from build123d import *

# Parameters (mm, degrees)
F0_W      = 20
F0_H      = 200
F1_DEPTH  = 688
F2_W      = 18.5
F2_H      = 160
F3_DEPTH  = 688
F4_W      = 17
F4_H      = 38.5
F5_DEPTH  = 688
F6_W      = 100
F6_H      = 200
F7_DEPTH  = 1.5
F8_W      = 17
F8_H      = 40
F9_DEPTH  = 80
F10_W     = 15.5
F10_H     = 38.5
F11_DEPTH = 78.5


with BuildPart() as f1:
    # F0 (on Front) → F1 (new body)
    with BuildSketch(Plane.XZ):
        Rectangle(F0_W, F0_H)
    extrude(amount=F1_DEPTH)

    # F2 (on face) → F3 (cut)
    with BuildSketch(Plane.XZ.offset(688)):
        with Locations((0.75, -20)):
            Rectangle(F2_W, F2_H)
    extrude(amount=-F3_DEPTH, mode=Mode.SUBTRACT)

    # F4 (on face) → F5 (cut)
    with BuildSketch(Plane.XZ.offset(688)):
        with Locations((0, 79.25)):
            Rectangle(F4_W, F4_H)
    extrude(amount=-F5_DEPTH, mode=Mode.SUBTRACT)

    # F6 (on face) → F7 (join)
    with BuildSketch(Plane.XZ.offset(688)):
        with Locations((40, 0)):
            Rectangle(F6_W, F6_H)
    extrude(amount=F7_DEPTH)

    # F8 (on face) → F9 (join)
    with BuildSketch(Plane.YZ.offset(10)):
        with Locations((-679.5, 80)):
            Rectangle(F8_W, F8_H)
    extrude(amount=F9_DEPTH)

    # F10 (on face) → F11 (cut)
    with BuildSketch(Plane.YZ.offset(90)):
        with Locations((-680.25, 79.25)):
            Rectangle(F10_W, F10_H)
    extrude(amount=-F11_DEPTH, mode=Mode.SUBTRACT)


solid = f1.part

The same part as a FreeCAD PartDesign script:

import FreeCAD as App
import Part
import Sketcher

doc = App.newDocument("Part")
body = doc.addObject("PartDesign::Body", "Body")

# Sketch on XZ plane
sketch1 = body.newObject("Sketcher::SketchObject", "Sketch")
sketch1.AttachmentSupport = (doc.getObject("XZ_Plane"), [""])
sketch1.MapMode = "FlatFace"
sketch1.addGeometry(Part.LineSegment(App.Vector(-10, 100, 0), App.Vector(-10, -100, 0)), False)
sketch1.addGeometry(Part.LineSegment(App.Vector(-10, -100, 0), App.Vector(10, -100, 0)), False)
sketch1.addGeometry(Part.LineSegment(App.Vector(10, -100, 0), App.Vector(10, 100, 0)), False)
sketch1.addGeometry(Part.LineSegment(App.Vector(10, 100, 0), App.Vector(-10, 100, 0)), False)
sketch1.addConstraint(Sketcher.Constraint("Coincident", 0, 2, 1, 1))
sketch1.addConstraint(Sketcher.Constraint("Coincident", 1, 2, 2, 1))
sketch1.addConstraint(Sketcher.Constraint("Coincident", 2, 2, 3, 1))
sketch1.addConstraint(Sketcher.Constraint("Coincident", 3, 2, 0, 1))
sketch1.addConstraint(Sketcher.Constraint("Vertical", 0))
sketch1.addConstraint(Sketcher.Constraint("Horizontal", 1))
sketch1.addConstraint(Sketcher.Constraint("Vertical", 2))
sketch1.addConstraint(Sketcher.Constraint("Horizontal", 3))
sketch1.addConstraint(Sketcher.Constraint("Symmetric", 0, 2, 2, 2, -1, 1))
sketch1.addConstraint(Sketcher.Constraint("DistanceX", 1, 1, 1, 2, 20.0))
sketch1.addConstraint(Sketcher.Constraint("DistanceY", 0, 2, 0, 1, 200.0))
pad1 = body.newObject("PartDesign::Pad", "Pad")
pad1.Profile = sketch1
pad1.Length = 688

# Sketch on XZ plane
sketch2 = body.newObject("Sketcher::SketchObject", "Sketch001")
sketch2.AttachmentSupport = (doc.getObject("XZ_Plane"), [""])
sketch2.MapMode = "FlatFace"
sketch2.AttachmentOffset = App.Placement(App.Vector(0, 0, 688), App.Rotation())
sketch2.addGeometry(Part.LineSegment(App.Vector(-8, 60, 0), App.Vector(-8, -100, 0)), False)
sketch2.addGeometry(Part.LineSegment(App.Vector(-8, -100, 0), App.Vector(10, -100, 0)), False)
sketch2.addGeometry(Part.LineSegment(App.Vector(10, -100, 0), App.Vector(10, 60, 0)), False)
sketch2.addGeometry(Part.LineSegment(App.Vector(10, 60, 0), App.Vector(-8, 60, 0)), False)
sketch2.addConstraint(Sketcher.Constraint("Coincident", 0, 2, 1, 1))
sketch2.addConstraint(Sketcher.Constraint("Coincident", 1, 2, 2, 1))
sketch2.addConstraint(Sketcher.Constraint("Coincident", 2, 2, 3, 1))
sketch2.addConstraint(Sketcher.Constraint("Coincident", 3, 2, 0, 1))
sketch2.addConstraint(Sketcher.Constraint("Vertical", 0))
sketch2.addConstraint(Sketcher.Constraint("Horizontal", 1))
sketch2.addConstraint(Sketcher.Constraint("Vertical", 2))
sketch2.addConstraint(Sketcher.Constraint("Horizontal", 3))
sketch2.addConstraint(Sketcher.Constraint("DistanceY", 0, 2, 0, 1, 160.0))
sketch2.addConstraint(Sketcher.Constraint("DistanceX", 1, 1, 1, 2, 18.5))
sketch2.addConstraint(Sketcher.Constraint("DistanceY", 0, 2, -1, 1, 100.0))
sketch2.addConstraint(Sketcher.Constraint("DistanceX", -1, 1, 1, 2, 10.0))
pocket1 = body.newObject("PartDesign::Pocket", "Pocket")
pocket1.Profile = sketch2
pocket1.Length = 688

# Sketch on XZ plane
sketch3 = body.newObject("Sketcher::SketchObject", "Sketch002")
sketch3.AttachmentSupport = (doc.getObject("XZ_Plane"), [""])
sketch3.MapMode = "FlatFace"
sketch3.AttachmentOffset = App.Placement(App.Vector(0, 0, 688), App.Rotation())
sketch3.addGeometry(Part.LineSegment(App.Vector(-8, 98, 0), App.Vector(-8, 60, 0)), False)
sketch3.addGeometry(Part.LineSegment(App.Vector(-8, 60, 0), App.Vector(8, 60, 0)), False)
sketch3.addGeometry(Part.LineSegment(App.Vector(8, 60, 0), App.Vector(8, 98, 0)), False)
sketch3.addGeometry(Part.LineSegment(App.Vector(8, 98, 0), App.Vector(-8, 98, 0)), False)
sketch3.addConstraint(Sketcher.Constraint("Coincident", 0, 2, 1, 1))
sketch3.addConstraint(Sketcher.Constraint("Coincident", 1, 2, 2, 1))
sketch3.addConstraint(Sketcher.Constraint("Coincident", 2, 2, 3, 1))
sketch3.addConstraint(Sketcher.Constraint("Coincident", 3, 2, 0, 1))
sketch3.addConstraint(Sketcher.Constraint("Vertical", 0))
sketch3.addConstraint(Sketcher.Constraint("Horizontal", 1))
sketch3.addConstraint(Sketcher.Constraint("Vertical", 2))
sketch3.addConstraint(Sketcher.Constraint("Horizontal", 3))
sketch3.addConstraint(Sketcher.Constraint("DistanceX", 1, 1, 1, 2, 17.0))
sketch3.addConstraint(Sketcher.Constraint("DistanceY", 0, 2, 0, 1, 38.5))
sketch3.addConstraint(Sketcher.Constraint("DistanceY", -1, 1, 0, 2, 60.0))
sketch3.addConstraint(Sketcher.Constraint("DistanceX", 0, 2, -1, 1, 8.5))
pocket2 = body.newObject("PartDesign::Pocket", "Pocket001")
pocket2.Profile = sketch3
pocket2.Length = 688

# Sketch on XZ plane
sketch4 = body.newObject("Sketcher::SketchObject", "Sketch003")
sketch4.AttachmentSupport = (doc.getObject("XZ_Plane"), [""])
sketch4.MapMode = "FlatFace"
sketch4.AttachmentOffset = App.Placement(App.Vector(0, 0, 688), App.Rotation())
sketch4.addGeometry(Part.LineSegment(App.Vector(-10, 100, 0), App.Vector(-10, -100, 0)), False)
sketch4.addGeometry(Part.LineSegment(App.Vector(-10, -100, 0), App.Vector(90, -100, 0)), False)
sketch4.addGeometry(Part.LineSegment(App.Vector(90, -100, 0), App.Vector(90, 100, 0)), False)
sketch4.addGeometry(Part.LineSegment(App.Vector(90, 100, 0), App.Vector(-10, 100, 0)), False)
sketch4.addConstraint(Sketcher.Constraint("Coincident", 0, 2, 1, 1))
sketch4.addConstraint(Sketcher.Constraint("Coincident", 1, 2, 2, 1))
sketch4.addConstraint(Sketcher.Constraint("Coincident", 2, 2, 3, 1))
sketch4.addConstraint(Sketcher.Constraint("Coincident", 3, 2, 0, 1))
sketch4.addConstraint(Sketcher.Constraint("Vertical", 0))
sketch4.addConstraint(Sketcher.Constraint("Horizontal", 1))
sketch4.addConstraint(Sketcher.Constraint("Vertical", 2))
sketch4.addConstraint(Sketcher.Constraint("Horizontal", 3))
sketch4.addConstraint(Sketcher.Constraint("DistanceX", 1, 1, 1, 2, 100.0))
sketch4.addConstraint(Sketcher.Constraint("DistanceY", 0, 2, 0, 1, 200.0))
sketch4.addConstraint(Sketcher.Constraint("DistanceX", 0, 2, -1, 1, 10.0))
sketch4.addConstraint(Sketcher.Constraint("DistanceY", 0, 2, -1, 1, 100.0))
pad2 = body.newObject("PartDesign::Pad", "Pad001")
pad2.Profile = sketch4
pad2.Length = 1.5

# Sketch on YZ plane
sketch5 = body.newObject("Sketcher::SketchObject", "Sketch004")
sketch5.AttachmentSupport = (doc.getObject("YZ_Plane"), [""])
sketch5.MapMode = "FlatFace"
sketch5.AttachmentOffset = App.Placement(App.Vector(0, 0, 10), App.Rotation())
sketch5.addGeometry(Part.LineSegment(App.Vector(-688, 100, 0), App.Vector(-688, 60, 0)), False)
sketch5.addGeometry(Part.LineSegment(App.Vector(-688, 60, 0), App.Vector(-671, 60, 0)), False)
sketch5.addGeometry(Part.LineSegment(App.Vector(-671, 60, 0), App.Vector(-671, 100, 0)), False)
sketch5.addGeometry(Part.LineSegment(App.Vector(-671, 100, 0), App.Vector(-688, 100, 0)), False)
sketch5.addConstraint(Sketcher.Constraint("Coincident", 0, 2, 1, 1))
sketch5.addConstraint(Sketcher.Constraint("Coincident", 1, 2, 2, 1))
sketch5.addConstraint(Sketcher.Constraint("Coincident", 2, 2, 3, 1))
sketch5.addConstraint(Sketcher.Constraint("Coincident", 3, 2, 0, 1))
sketch5.addConstraint(Sketcher.Constraint("Vertical", 0))
sketch5.addConstraint(Sketcher.Constraint("Horizontal", 1))
sketch5.addConstraint(Sketcher.Constraint("Vertical", 2))
sketch5.addConstraint(Sketcher.Constraint("Horizontal", 3))
sketch5.addConstraint(Sketcher.Constraint("DistanceX", 1, 1, 1, 2, 17.0))
sketch5.addConstraint(Sketcher.Constraint("DistanceY", 0, 2, 0, 1, 40.0))
sketch5.addConstraint(Sketcher.Constraint("DistanceX", 0, 2, -1, 1, 688.0))
sketch5.addConstraint(Sketcher.Constraint("DistanceY", -1, 1, 0, 2, 60.0))
pad3 = body.newObject("PartDesign::Pad", "Pad002")
pad3.Profile = sketch5
pad3.Length = 80

# Sketch on YZ plane
sketch6 = body.newObject("Sketcher::SketchObject", "Sketch005")
sketch6.AttachmentSupport = (doc.getObject("YZ_Plane"), [""])
sketch6.MapMode = "FlatFace"
sketch6.AttachmentOffset = App.Placement(App.Vector(0, 0, 90), App.Rotation())
sketch6.addGeometry(Part.LineSegment(App.Vector(-688, 98, 0), App.Vector(-688, 60, 0)), False)
sketch6.addGeometry(Part.LineSegment(App.Vector(-688, 60, 0), App.Vector(-672, 60, 0)), False)
sketch6.addGeometry(Part.LineSegment(App.Vector(-672, 60, 0), App.Vector(-672, 98, 0)), False)
sketch6.addGeometry(Part.LineSegment(App.Vector(-672, 98, 0), App.Vector(-688, 98, 0)), False)
sketch6.addConstraint(Sketcher.Constraint("Coincident", 0, 2, 1, 1))
sketch6.addConstraint(Sketcher.Constraint("Coincident", 1, 2, 2, 1))
sketch6.addConstraint(Sketcher.Constraint("Coincident", 2, 2, 3, 1))
sketch6.addConstraint(Sketcher.Constraint("Coincident", 3, 2, 0, 1))
sketch6.addConstraint(Sketcher.Constraint("Vertical", 0))
sketch6.addConstraint(Sketcher.Constraint("Horizontal", 1))
sketch6.addConstraint(Sketcher.Constraint("Vertical", 2))
sketch6.addConstraint(Sketcher.Constraint("Horizontal", 3))
sketch6.addConstraint(Sketcher.Constraint("DistanceX", 1, 1, 1, 2, 15.5))
sketch6.addConstraint(Sketcher.Constraint("DistanceY", 0, 2, 0, 1, 38.5))
sketch6.addConstraint(Sketcher.Constraint("DistanceX", 0, 2, -1, 1, 688.0))
sketch6.addConstraint(Sketcher.Constraint("DistanceY", -1, 1, 0, 2, 60.0))
pocket3 = body.newObject("PartDesign::Pocket", "Pocket002")
pocket3.Profile = sketch6
pocket3.Length = 78.5

doc.recompute()
